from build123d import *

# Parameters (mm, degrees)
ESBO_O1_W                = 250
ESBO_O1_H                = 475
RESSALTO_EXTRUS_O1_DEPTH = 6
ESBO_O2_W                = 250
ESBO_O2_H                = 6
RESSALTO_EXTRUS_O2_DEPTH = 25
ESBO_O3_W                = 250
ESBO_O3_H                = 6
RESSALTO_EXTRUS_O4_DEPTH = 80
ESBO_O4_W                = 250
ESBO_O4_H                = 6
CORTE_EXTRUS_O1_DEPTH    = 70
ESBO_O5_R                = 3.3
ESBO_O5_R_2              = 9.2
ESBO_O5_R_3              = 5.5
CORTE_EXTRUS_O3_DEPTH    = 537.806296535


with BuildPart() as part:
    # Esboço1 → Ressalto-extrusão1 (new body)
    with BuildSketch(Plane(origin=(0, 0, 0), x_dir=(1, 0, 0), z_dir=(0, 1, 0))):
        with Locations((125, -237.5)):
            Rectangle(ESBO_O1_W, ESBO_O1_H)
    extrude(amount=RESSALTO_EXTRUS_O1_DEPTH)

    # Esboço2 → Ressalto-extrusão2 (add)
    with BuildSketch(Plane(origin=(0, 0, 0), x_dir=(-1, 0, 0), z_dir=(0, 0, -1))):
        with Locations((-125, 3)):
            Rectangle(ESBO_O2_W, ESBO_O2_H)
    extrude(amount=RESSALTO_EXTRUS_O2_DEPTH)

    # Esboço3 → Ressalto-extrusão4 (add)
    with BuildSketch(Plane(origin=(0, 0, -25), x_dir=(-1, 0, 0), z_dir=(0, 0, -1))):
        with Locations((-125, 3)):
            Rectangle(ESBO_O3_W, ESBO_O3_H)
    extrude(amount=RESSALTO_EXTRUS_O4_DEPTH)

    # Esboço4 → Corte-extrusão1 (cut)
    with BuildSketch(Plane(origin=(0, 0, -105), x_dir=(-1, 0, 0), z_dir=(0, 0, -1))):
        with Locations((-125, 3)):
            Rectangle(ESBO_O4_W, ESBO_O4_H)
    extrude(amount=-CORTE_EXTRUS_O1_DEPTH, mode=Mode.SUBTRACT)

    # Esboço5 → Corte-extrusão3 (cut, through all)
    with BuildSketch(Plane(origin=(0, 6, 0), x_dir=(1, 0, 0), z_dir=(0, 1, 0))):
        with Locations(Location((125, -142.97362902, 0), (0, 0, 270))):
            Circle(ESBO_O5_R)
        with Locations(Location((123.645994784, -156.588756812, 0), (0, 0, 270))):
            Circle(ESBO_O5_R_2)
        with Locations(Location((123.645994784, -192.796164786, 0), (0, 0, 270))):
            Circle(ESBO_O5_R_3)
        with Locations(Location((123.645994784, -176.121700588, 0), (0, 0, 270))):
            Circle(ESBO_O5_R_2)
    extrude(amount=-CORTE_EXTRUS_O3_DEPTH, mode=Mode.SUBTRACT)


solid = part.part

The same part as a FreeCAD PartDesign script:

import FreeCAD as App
import Part
import Sketcher

V = App.Vector
Q = App.Units.Quantity


def add_polygon(sketch, points):
    """Adds a closed chain of lines whose ends are joined by coincident constraints."""
    first, n = sketch.GeometryCount, len(points)
    for a, b in zip(points, points[1:] + points[:1]):
        sketch.addGeometry(Part.LineSegment(App.Vector(*a, 0), App.Vector(*b, 0)), False)
    for i in range(n):
        sketch.addConstraint(Sketcher.Constraint("Coincident", first + i, 2, first + (i + 1) % n, 1))

doc = App.newDocument("Part")
body = doc.addObject("PartDesign::Body", "Body")

sketch1 = doc.addObject("Sketcher::SketchObject", "Sketch")
body.addObject(sketch1)
sketch1.AttachmentSupport = (doc.XZ_Plane, [""])
sketch1.MapMode = "FlatFace"
add_polygon(sketch1, [(0, 0), (0, 475), (250, 475), (250, 0)])
sketch1.addConstraint([
    Sketcher.Constraint("Vertical", 0),
    Sketcher.Constraint("Horizontal", 1),
    Sketcher.Constraint("Vertical", 2),
    Sketcher.Constraint("Horizontal", 3),
    Sketcher.Constraint("Coincident", 3, 2, -1, 1),
    Sketcher.Constraint("DistanceX", 1, 1, 1, 2, Q("250 mm")),
    Sketcher.Constraint("DistanceY", 0, 1, 0, 2, Q("475 mm")),
])
pad1 = doc.addObject("PartDesign::Pad", "Pad")
body.addObject(pad1)
pad1.Profile = sketch1
pad1.Length = 6
pad1.Reversed = True

sketch2 = doc.addObject("Sketcher::SketchObject", "Sketch001")
body.addObject(sketch2)
sketch2.AttachmentSupport = (doc.XY_Plane, [""])
sketch2.MapMode = "FlatFace"
add_polygon(sketch2, [(250, 6), (250, 0), (0, 0), (0, 6)])
sketch2.addConstraint([
    Sketcher.Constraint("Vertical", 0),
    Sketcher.Constraint("Horizontal", 1),
    Sketcher.Constraint("Vertical", 2),
    Sketcher.Constraint("Horizontal", 3),
    Sketcher.Constraint("Coincident", 1, 2, -1, 1),
    Sketcher.Constraint("DistanceX", 1, 2, 1, 1, Q("250 mm")),
    Sketcher.Constraint("DistanceY", 0, 2, 0, 1, Q("6 mm")),
])
pad2 = doc.addObject("PartDesign::Pad", "Pad001")
body.addObject(pad2)
pad2.Profile = sketch2
pad2.Length = 25
pad2.Reversed = True

sketch3 = doc.addObject("Sketcher::SketchObject", "Sketch002")
body.addObject(sketch3)
sketch3.AttachmentSupport = (doc.XY_Plane, [""])
sketch3.MapMode = "FlatFace"
sketch3.AttachmentOffset = App.Placement(V(0, 0, -25), App.Rotation())
add_polygon(sketch3, [(250, 6), (250, 0), (0, 0), (0, 6)])
sketch3.addConstraint([
    Sketcher.Constraint("Vertical", 0),
    Sketcher.Constraint("Horizontal", 1),
    Sketcher.Constraint("Vertical", 2),
    Sketcher.Constraint("Horizontal", 3),
    Sketcher.Constraint("Coincident", 1, 2, -1, 1),
    Sketcher.Constraint("DistanceX", 1, 2, 1, 1, Q("250 mm")),
    Sketcher.Constraint("DistanceY", 0, 2, 0, 1, Q("6 mm")),
])
pad3 = doc.addObject("PartDesign::Pad", "Pad002")
body.addObject(pad3)
pad3.Profile = sketch3
pad3.Length = 80
pad3.Reversed = True

sketch4 = doc.addObject("Sketcher::SketchObject", "Sketch003")
body.addObject(sketch4)
sketch4.AttachmentSupport = (doc.XY_Plane, [""])
sketch4.MapMode = "FlatFace"
sketch4.AttachmentOffset = App.Placement(V(0, 0, -105), App.Rotation())
add_polygon(sketch4, [(250, 6), (250, 0), (0, 0), (0, 6)])
sketch4.addConstraint([
    Sketcher.Constraint("Vertical", 0),
    Sketcher.Constraint("Horizontal", 1),
    Sketcher.Constraint("Vertical", 2),
    Sketcher.Constraint("Horizontal", 3),
    Sketcher.Constraint("Coincident", 1, 2, -1, 1),
    Sketcher.Constraint("DistanceX", 1, 2, 1, 1, Q("250 mm")),
    Sketcher.Constraint("DistanceY", 0, 2, 0, 1, Q("6 mm")),
])
pocket1 = doc.addObject("PartDesign::Pocket", "Pocket")
body.addObject(pocket1)
pocket1.Profile = sketch4
pocket1.Length = 70
pocket1.Reversed = True

sketch5 = doc.addObject("Sketcher::SketchObject", "Sketch004")
body.addObject(sketch5)
sketch5.AttachmentSupport = (doc.XZ_Plane, [""])
sketch5.MapMode = "FlatFace"
sketch5.AttachmentOffset = App.Placement(V(0, 0, -6), App.Rotation())
sketch5.addGeometry([
    Part.Circle(V(125, 143, 0), V(0, 0, 1), 3.3),
    Part.Circle(V(123.6, 156.6, 0), V(0, 0, 1), 9.2),
    Part.Circle(V(123.6, 192.8, 0), V(0, 0, 1), 5.5),
    Part.Circle(V(123.6, 176.1, 0), V(0, 0, 1), 9.2),
], False)
sketch5.addConstraint([
    Sketcher.Constraint("Equal", 1, 3),
    Sketcher.Constraint("Vertical", 1, 3, 2, 3),
    Sketcher.Constraint("Vertical", 2, 3, 3, 3),
    Sketcher.Constraint("Diameter", 2, Q("11 mm")),
    Sketcher.Constraint("Diameter", 0, Q("6.6 mm")),
    Sketcher.Constraint("Diameter", 1, Q("18.4 mm")),
    Sketcher.Constraint("DistanceX", -1, 1, 0, 3, Q("125 mm")),
    Sketcher.Constraint("DistanceY", -1, 1, 3, 3, Q("176.121701 mm")),
    Sketcher.Constraint("DistanceY", -1, 1, 0, 3, Q("142.973629 mm")),
    Sketcher.Constraint("DistanceX", -1, 1, 1, 3, Q("123.645995 mm")),
    Sketcher.Constraint("DistanceY", -1, 1, 1, 3, Q("156.588757 mm")),
    Sketcher.Constraint("DistanceY", -1, 1, 2, 3, Q("192.796165 mm")),
])
pocket2 = doc.addObject("PartDesign::Pocket", "Pocket001")
body.addObject(pocket2)
pocket2.Profile = sketch5
pocket2.Type = "ThroughAll"
pocket2.Reversed = True

doc.recompute()
